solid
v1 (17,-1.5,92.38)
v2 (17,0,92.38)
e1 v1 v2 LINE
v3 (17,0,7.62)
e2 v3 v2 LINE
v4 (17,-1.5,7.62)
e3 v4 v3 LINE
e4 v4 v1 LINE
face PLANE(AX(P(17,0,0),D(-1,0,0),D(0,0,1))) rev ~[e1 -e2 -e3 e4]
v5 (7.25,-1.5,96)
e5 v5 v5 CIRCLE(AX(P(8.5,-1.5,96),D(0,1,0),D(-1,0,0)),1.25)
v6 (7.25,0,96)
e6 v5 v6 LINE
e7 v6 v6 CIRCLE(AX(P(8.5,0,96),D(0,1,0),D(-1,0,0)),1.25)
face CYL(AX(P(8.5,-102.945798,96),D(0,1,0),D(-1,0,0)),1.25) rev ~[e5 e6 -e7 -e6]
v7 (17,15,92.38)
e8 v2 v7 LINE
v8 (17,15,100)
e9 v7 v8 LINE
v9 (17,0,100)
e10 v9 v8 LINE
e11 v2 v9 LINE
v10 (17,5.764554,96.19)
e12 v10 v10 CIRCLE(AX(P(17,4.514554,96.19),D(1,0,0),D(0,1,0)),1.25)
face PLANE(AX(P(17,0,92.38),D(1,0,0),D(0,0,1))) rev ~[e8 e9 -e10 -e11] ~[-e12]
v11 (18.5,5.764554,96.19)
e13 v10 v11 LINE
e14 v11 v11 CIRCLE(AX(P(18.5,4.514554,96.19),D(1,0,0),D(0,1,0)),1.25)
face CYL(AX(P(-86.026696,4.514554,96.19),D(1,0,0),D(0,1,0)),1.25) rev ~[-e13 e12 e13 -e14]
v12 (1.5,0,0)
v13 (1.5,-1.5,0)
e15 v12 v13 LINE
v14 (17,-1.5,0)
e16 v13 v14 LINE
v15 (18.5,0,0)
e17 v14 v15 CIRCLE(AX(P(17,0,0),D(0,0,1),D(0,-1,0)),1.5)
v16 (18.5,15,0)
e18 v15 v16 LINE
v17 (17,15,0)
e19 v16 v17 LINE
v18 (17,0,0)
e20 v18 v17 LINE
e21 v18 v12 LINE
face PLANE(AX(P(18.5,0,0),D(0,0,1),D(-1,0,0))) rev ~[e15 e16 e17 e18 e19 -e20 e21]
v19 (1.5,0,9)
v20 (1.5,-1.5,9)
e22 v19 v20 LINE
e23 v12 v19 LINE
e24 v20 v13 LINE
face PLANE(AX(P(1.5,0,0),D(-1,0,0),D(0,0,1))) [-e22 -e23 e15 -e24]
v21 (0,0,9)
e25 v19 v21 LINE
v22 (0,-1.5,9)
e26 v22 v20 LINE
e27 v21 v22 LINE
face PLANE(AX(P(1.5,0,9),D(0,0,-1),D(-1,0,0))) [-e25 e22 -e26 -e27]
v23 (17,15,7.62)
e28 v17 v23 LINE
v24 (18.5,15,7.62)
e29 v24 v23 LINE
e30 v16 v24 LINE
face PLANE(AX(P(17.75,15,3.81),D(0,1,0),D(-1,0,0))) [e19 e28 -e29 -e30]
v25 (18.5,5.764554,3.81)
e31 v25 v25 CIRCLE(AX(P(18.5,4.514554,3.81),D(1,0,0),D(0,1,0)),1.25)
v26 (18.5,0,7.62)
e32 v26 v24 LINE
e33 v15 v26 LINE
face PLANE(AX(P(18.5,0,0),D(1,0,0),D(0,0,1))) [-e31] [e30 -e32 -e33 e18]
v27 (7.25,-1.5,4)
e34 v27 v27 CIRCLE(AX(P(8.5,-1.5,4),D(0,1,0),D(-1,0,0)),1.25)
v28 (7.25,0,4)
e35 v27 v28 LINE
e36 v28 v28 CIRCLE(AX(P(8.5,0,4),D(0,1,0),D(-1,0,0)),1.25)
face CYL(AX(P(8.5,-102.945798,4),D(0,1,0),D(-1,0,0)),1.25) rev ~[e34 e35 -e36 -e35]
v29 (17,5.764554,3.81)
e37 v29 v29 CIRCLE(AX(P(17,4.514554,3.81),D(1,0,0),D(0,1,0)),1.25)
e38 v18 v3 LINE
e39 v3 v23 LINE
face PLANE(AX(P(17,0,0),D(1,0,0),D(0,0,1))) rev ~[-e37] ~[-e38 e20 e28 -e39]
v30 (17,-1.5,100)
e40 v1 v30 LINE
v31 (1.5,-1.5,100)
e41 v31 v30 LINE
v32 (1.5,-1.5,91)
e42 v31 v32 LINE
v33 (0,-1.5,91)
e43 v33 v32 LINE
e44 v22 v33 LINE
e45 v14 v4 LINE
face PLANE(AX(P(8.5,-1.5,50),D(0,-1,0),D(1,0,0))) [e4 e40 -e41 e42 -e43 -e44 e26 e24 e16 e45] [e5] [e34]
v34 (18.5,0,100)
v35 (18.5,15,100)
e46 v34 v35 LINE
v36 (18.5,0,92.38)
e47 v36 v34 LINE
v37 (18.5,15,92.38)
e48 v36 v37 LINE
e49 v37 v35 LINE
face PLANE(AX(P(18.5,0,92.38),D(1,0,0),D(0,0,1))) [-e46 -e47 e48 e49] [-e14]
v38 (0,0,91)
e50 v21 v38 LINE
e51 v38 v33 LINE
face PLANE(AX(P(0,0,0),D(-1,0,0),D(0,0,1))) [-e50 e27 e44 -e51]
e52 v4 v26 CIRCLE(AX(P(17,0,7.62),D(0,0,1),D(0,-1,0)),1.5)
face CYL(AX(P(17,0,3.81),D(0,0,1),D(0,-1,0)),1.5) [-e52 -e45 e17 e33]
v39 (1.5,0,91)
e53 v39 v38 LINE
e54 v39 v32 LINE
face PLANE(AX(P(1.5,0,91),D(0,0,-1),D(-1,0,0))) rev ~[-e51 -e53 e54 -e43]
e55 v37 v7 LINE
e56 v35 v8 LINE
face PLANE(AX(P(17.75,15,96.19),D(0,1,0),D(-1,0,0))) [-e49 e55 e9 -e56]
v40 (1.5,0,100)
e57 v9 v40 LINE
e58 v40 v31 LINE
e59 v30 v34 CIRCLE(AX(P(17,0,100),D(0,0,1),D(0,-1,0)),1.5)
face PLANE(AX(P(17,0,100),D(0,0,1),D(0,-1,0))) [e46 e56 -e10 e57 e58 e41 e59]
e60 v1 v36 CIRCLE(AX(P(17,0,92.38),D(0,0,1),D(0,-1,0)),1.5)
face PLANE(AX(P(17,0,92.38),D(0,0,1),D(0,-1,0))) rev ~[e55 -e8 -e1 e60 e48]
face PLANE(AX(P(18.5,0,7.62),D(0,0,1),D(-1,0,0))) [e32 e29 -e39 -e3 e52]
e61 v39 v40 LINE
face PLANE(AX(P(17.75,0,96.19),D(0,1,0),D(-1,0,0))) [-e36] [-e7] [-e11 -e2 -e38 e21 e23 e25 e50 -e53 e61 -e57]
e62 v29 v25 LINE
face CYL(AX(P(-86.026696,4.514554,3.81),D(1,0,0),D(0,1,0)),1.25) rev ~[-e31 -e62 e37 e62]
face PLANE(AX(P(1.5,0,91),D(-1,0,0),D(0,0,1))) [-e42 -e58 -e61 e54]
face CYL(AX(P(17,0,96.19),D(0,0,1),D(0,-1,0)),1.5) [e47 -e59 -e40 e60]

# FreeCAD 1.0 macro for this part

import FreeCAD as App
import Part
import Sketcher
from FreeCAD import Vector
Q = App.Units.Quantity


def add_polygon(sketch, points):
    """Adds a closed chain of lines whose ends are joined by coincident constraints."""
    first, n = sketch.GeometryCount, len(points)
    for a, b in zip(points, points[1:] + points[:1]):
        sketch.addGeometry(Part.LineSegment(App.Vector(*a, 0), App.Vector(*b, 0)), False)
    for i in range(n):
        sketch.addConstraint(Sketcher.Constraint("Coincident", first + i, 2, first + (i + 1) % n, 1))

doc = App.newDocument("Part")
params = doc.addObject("Spreadsheet::Sheet", "Params")
for row, (alias, value) in enumerate([
    ("sketch1_width", "17 mm"),
    ("sketch1_height", "100 mm"),
    ("pad1_length", "1.5 mm"),
    ("sketch2_diameter", "2.5 mm"),
    ("hole_diameter", "2.5 mm"),
    ("sketch3_width", "1.5 mm"),
    ("sketch3_height", "7.62 mm"),
    ("revolution_angle", "90 deg"),
    ("sketch4_width", "1.5 mm"),
    ("sketch4_height", "7.62 mm"),
    ("pad2_length", "15 mm"),
    ("sketch5_diameter", "2.5 mm"),
    ("hole2_diameter", "2.5 mm"),
    ("sketch6_height", "9 mm"),
    ("sketch6_width", "1.5 mm"),
], start=1):
    params.set(f"A{row}", alias)
    params.set(f"B{row}", "=" + value)
    params.setAlias(f"B{row}", alias)

body = doc.addObject("PartDesign::Body", "Body")

# Sketch on XZ plane
sketch1 = doc.addObject("Sketcher::SketchObject", "Sketch")
body.addObject(sketch1)
sketch1.AttachmentSupport = (doc.XZ_Plane, [""])
sketch1.MapMode = "FlatFace"
add_polygon(sketch1, [(0, 100), (0, 0), (17, 0), (17, 100)])  # lines 0-3
sketch1.addConstraint([
    Sketcher.Constraint("Vertical", 0),
    Sketcher.Constraint("Horizontal", 1),
    Sketcher.Constraint("Vertical", 2),
    Sketcher.Constraint("Horizontal", 3),
    Sketcher.Constraint("Coincident", 0, 2, -1, 1),
    Sketcher.Constraint("DistanceX", 1, 1, 1, 2, Q("17 mm")),
    Sketcher.Constraint("DistanceY", 0, 2, 0, 1, Q("100 mm")),
])
sketch1.setExpression("Constraints[9]", "Params.sketch1_width")
sketch1.setExpression("Constraints[10]", "Params.sketch1_height")
pad1 = doc.addObject("PartDesign::Pad", "Pad")
body.addObject(pad1)
pad1.Profile = sketch1
pad1.setExpression("Length", "Params.pad1_length")

# Sketch on XZ plane
sketch2 = doc.addObject("Sketcher::SketchObject", "Sketch001")
body.addObject(sketch2)
sketch2.AttachmentSupport = (doc.XZ_Plane, [""])
sketch2.MapMode = "FlatFace"
sketch2.AttachmentOffset = App.Placement(Vector(0, 0, 1.5), App.Rotation())
sketch2.addGeometry([
    Part.Circle(Vector(8.5, 96, 0), Vector(0, 0, 1), 1.25),
    Part.Circle(Vector(8.5, 4, 0), Vector(0, 0, 1), 1.25),
], False)
sketch2.addConstraint([
    Sketcher.Constraint("Equal", 0, 1),
    Sketcher.Constraint("Vertical", 0, 3, 1, 3),
    Sketcher.Constraint("Diameter", 0, Q("2.5 mm")),
    Sketcher.Constraint("DistanceY", -1, 1, 0, 3, Q("96 mm")),
    Sketcher.Constraint("DistanceY", -1, 1, 1, 3, Q("4 mm")),
    Sketcher.Constraint("DistanceX", -1, 1, 0, 3, Q("8.5 mm")),
])
sketch2.setExpression("Constraints[2]", "Params.sketch2_diameter")
doc.recompute()
hole = doc.addObject("PartDesign::Hole", "Hole")
body.addObject(hole)
hole.Profile = sketch2
hole.ThreadType = "None"
hole.setExpression("Diameter", "Params.hole_diameter")
hole.DepthType = "ThroughAll"

# Sketch on YZ plane
sketch3 = doc.addObject("Sketcher::SketchObject", "Sketch002")
body.addObject(sketch3)
sketch3.AttachmentSupport = (doc.YZ_Plane, [""])
sketch3.MapMode = "FlatFace"
sketch3.AttachmentOffset = App.Placement(Vector(0, 0, 17), App.Rotation())
add_polygon(sketch3, [(-1.5, 100), (-1.5, 92.38), (0, 92.38), (0, 100)])  # lines 0-3
add_polygon(sketch3, [(-1.5, 7.62), (-1.5, 0), (0, 0), (0, 7.62)])  # lines 4-7
sketch3.addConstraint([
    Sketcher.Constraint("Vertical", 0),
    Sketcher.Constraint("Horizontal", 1),
    Sketcher.Constraint("Vertical", 2),
    Sketcher.Constraint("Horizontal", 3),
    Sketcher.Constraint("Vertical", 4),
    Sketcher.Constraint("Horizontal", 5),
    Sketcher.Constraint("Vertical", 6),
    Sketcher.Constraint("Horizontal", 7),
    Sketcher.Constraint("Coincident", 5, 2, -1, 1),
    Sketcher.Constraint("PointOnObject", 1, 2, -2),
    Sketcher.Constraint("Vertical", 3, 2, 4, 2),
    Sketcher.Constraint("Equal", 2, 4),
    Sketcher.Constraint("DistanceX", 1, 1, 1, 2, Q("1.5 mm")),
    Sketcher.Constraint("DistanceY", -1, 1, 2, 2, Q("100 mm")),
    Sketcher.Constraint("DistanceY", 0, 2, 0, 1, Q("7.62 mm")),
])
sketch3.setExpression("Constraints[20]", "Params.sketch3_width")
sketch3.setExpression("Constraints[22]", "Params.sketch3_height")
revolution = doc.addObject("PartDesign::Revolution", "Revolution")
body.addObject(revolution)
revolution.Profile = sketch3
revolution.ReferenceAxis = (sketch3, ["V_Axis"])
revolution.setExpression("Angle", "Params.revolution_angle")

# Sketch on XZ plane
sketch4 = doc.addObject("Sketcher::SketchObject", "Sketch003")
body.addObject(sketch4)
sketch4.AttachmentSupport = (doc.XZ_Plane, [""])
sketch4.MapMode = "FlatFace"
add_polygon(sketch4, [(18.5, 7.62), (18.5, 0), (17, 0), (17, 7.62)])  # lines 0-3
add_polygon(sketch4, [(18.5, 100), (18.5, 92.38), (17, 92.38), (17, 100)])  # lines 4-7
sketch4.addConstraint([
    Sketcher.Constraint("Vertical", 0),
    Sketcher.Constraint("Horizontal", 1),
    Sketcher.Constraint("Vertical", 2),
    Sketcher.Constraint("Horizontal", 3),
    Sketcher.Constraint("Vertical", 4),
    Sketcher.Constraint("Horizontal", 5),
    Sketcher.Constraint("Vertical", 6),
    Sketcher.Constraint("Horizontal", 7),
    Sketcher.Constraint("PointOnObject", 0, 2, -1),
    Sketcher.Constraint("Vertical", 3, 2, 4, 2),
    Sketcher.Constraint("Vertical", 2, 2, 5, 2),
    Sketcher.Constraint("Equal", 2, 4),
    Sketcher.Constraint("DistanceX", 1, 2, 1, 1, Q("1.5 mm")),
    Sketcher.Constraint("DistanceX", -1, 1, 1, 2, Q("17 mm")),
    Sketcher.Constraint("DistanceY", -1, 1, 6, 2, Q("100 mm")),
    Sketcher.Constraint("DistanceY", 0, 2, 0, 1, Q("7.62 mm")),
])
sketch4.setExpression("Constraints[20]", "Params.sketch4_width")
sketch4.setExpression("Constraints[23]", "Params.sketch4_height")
pad2 = doc.addObject("PartDesign::Pad", "Pad001")
body.addObject(pad2)
pad2.Profile = sketch4
pad2.setExpression("Length", "Params.pad2_length")
pad2.Reversed = True

# Sketch on YZ plane
sketch5 = doc.addObject("Sketcher::SketchObject", "Sketch004")
body.addObject(sketch5)
sketch5.AttachmentSupport = (doc.YZ_Plane, [""])
sketch5.MapMode = "FlatFace"
sketch5.AttachmentOffset = App.Placement(Vector(0, 0, 17), App.Rotation())
sketch5.addGeometry([
    Part.Circle(Vector(4.514554, 96.19, 0), Vector(0, 0, 1), 1.25),
    Part.Circle(Vector(4.514554, 3.81, 0), Vector(0, 0, 1), 1.25),
], False)
sketch5.addConstraint([
    Sketcher.Constraint("Equal", 0, 1),
    Sketcher.Constraint("Vertical", 0, 3, 1, 3),
    Sketcher.Constraint("Diameter", 0, Q("2.5 mm")),
    Sketcher.Constraint("DistanceY", -1, 1, 0, 3, Q("96.19 mm")),
    Sketcher.Constraint("DistanceY", -1, 1, 1, 3, Q("3.81 mm")),
    Sketcher.Constraint("DistanceX", -1, 1, 0, 3, Q("4.514554 mm")),
])
sketch5.setExpression("Constraints[2]", "Params.sketch5_diameter")
doc.recompute()
hole2 = doc.addObject("PartDesign::Hole", "Hole001")
body.addObject(hole2)
hole2.Profile = sketch5
hole2.ThreadType = "None"
hole2.setExpression("Diameter", "Params.hole2_diameter")
hole2.DepthType = "ThroughAll"
hole2.Reversed = True

# Sketch on XZ plane
sketch6 = doc.addObject("Sketcher::SketchObject", "Sketch005")
body.addObject(sketch6)
sketch6.AttachmentSupport = (doc.XZ_Plane, [""])
sketch6.MapMode = "FlatFace"
add_polygon(sketch6, [(1.5, 100), (1.5, 91), (0, 91), (0, 100)])  # lines 0-3
add_polygon(sketch6, [(1.5, 9), (1.5, 0), (0, 0), (0, 9)])  # lines 4-7
sketch6.addConstraint([
    Sketcher.Constraint("Vertical", 0),
    Sketcher.Constraint("Horizontal", 1),
    Sketcher.Constraint("Vertical", 2),
    Sketcher.Constraint("Horizontal", 3),
    Sketcher.Constraint("Vertical", 4),
    Sketcher.Constraint("Horizontal", 5),
    Sketcher.Constraint("Vertical", 6),
    Sketcher.Constraint("Horizontal", 7),
    Sketcher.Constraint("Coincident", 5, 2, -1, 1),
    Sketcher.Constraint("PointOnObject", 1, 2, -2),
    Sketcher.Constraint("Vertical", 3, 2, 4, 2),
    Sketcher.Constraint("Equal", 2, 4),
    Sketcher.Constraint("DistanceY", 0, 2, 0, 1, Q("9 mm")),
    Sketcher.Constraint("DistanceX", 1, 2, 1, 1, Q("1.5 mm")),
    Sketcher.Constraint("DistanceY", -1, 1, 0, 2, Q("91 mm")),
])
sketch6.setExpression("Constraints[20]", "Params.sketch6_height")
sketch6.setExpression("Constraints[21]", "Params.sketch6_width")
pocket1 = doc.addObject("PartDesign::Pocket", "Pocket")
body.addObject(pocket1)
pocket1.Profile = sketch6
pocket1.Type = "ThroughAll"
pocket1.Reversed = True

doc.recompute()
